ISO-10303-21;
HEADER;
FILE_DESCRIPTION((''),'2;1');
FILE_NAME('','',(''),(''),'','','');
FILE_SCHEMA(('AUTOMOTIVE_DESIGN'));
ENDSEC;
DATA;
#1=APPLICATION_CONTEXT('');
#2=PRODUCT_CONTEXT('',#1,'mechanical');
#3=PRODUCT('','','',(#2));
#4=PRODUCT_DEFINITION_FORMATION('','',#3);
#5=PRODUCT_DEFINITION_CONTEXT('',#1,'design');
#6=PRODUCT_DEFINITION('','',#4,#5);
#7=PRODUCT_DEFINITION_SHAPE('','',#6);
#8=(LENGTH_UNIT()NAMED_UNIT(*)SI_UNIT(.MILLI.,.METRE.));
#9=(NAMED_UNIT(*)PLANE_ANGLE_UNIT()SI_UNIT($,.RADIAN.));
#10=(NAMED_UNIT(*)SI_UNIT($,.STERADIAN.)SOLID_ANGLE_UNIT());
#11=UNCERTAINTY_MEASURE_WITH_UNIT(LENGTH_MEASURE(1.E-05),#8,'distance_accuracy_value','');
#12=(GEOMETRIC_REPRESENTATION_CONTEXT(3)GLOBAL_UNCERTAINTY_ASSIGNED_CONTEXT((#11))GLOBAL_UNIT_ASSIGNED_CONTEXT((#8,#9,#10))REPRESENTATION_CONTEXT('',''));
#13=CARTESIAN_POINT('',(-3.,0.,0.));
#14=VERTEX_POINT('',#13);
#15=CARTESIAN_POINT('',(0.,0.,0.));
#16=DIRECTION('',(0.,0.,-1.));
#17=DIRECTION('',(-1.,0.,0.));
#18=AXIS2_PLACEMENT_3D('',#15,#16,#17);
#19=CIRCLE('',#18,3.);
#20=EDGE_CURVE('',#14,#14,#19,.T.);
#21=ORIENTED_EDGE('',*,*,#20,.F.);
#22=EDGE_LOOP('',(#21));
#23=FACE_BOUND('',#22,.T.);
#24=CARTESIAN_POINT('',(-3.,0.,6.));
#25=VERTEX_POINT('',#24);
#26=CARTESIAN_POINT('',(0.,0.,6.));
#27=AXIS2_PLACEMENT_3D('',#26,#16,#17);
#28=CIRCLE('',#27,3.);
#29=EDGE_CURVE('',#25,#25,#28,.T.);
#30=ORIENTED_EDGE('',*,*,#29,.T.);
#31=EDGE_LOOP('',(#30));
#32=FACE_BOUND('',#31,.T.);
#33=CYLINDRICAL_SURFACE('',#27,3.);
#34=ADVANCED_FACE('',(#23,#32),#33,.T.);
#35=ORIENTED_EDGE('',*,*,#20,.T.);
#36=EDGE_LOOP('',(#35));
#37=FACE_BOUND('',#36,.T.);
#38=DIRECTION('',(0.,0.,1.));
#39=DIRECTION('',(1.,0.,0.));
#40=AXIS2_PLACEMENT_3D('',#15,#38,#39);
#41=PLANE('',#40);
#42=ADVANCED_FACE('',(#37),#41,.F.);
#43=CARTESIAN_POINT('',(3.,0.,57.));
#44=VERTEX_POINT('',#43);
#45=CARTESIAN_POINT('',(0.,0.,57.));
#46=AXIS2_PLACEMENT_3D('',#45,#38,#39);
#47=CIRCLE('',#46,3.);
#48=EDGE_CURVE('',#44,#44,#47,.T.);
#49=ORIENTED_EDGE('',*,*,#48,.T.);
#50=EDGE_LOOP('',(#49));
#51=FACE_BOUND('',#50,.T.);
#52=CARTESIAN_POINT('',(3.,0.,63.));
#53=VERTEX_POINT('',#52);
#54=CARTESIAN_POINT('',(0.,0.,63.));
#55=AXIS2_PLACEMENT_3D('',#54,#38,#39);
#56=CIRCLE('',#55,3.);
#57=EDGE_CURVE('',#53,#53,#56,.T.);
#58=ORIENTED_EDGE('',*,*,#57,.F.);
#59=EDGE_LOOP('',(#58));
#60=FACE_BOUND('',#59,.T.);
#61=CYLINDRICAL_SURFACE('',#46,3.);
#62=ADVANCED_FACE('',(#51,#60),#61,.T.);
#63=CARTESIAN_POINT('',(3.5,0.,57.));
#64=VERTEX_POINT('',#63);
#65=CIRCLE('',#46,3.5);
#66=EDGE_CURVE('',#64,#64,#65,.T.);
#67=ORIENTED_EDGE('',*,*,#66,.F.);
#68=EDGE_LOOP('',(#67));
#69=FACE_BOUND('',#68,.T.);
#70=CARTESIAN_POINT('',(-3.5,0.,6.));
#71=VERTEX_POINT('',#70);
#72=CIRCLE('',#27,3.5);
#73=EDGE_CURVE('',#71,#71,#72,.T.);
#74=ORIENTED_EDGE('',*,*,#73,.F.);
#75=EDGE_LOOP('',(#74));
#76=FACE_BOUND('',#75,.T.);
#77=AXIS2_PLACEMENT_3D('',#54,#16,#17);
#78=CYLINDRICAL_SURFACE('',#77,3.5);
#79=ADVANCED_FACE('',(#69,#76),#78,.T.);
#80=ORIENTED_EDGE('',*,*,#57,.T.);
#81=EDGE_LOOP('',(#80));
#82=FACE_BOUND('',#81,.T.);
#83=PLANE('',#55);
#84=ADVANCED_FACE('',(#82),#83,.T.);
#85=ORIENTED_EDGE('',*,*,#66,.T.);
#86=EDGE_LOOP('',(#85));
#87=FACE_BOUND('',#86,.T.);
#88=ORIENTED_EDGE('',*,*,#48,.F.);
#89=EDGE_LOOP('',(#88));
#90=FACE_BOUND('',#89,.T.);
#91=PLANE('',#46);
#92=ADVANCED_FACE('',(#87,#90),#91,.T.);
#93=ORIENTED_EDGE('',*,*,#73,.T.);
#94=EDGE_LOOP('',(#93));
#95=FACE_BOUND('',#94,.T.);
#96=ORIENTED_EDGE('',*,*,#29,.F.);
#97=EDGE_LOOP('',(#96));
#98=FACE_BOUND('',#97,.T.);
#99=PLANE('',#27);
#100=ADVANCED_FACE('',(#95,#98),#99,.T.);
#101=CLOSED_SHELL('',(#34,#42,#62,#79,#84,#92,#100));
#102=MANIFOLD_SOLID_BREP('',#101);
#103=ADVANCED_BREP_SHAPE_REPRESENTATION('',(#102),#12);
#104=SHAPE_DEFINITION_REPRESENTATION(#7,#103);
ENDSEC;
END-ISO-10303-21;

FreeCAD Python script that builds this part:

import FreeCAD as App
import Part
import Sketcher

doc = App.newDocument("Part")
body = doc.addObject("PartDesign::Body", "Body")

sketch1 = body.newObject("Sketcher::SketchObject", "Sketch")
sketch1.AttachmentSupport = (doc.getObject("XY_Plane"), [""])
sketch1.MapMode = "FlatFace"
sketch1.addGeometry(Part.Circle(App.Vector(0, 0, 0), App.Vector(0, 0, 1), 3.5), False)
sketch1.addConstraint(Sketcher.Constraint("Coincident", 0, 3, -1, 1))
sketch1.addConstraint(Sketcher.Constraint("Diameter", 0, 7.0))
pad1 = body.newObject("PartDesign::Pad", "Pad")
pad1.Profile = sketch1
pad1.Length = 63

sketch2 = body.newObject("Sketcher::SketchObject", "Sketch001")
sketch2.AttachmentSupport = (doc.getObject("XY_Plane"), [""])
sketch2.MapMode = "FlatFace"
sketch2.AttachmentOffset = App.Placement(App.Vector(0, 0, 63), App.Rotation())
sketch2.addGeometry(Part.Circle(App.Vector(0, 0, 0), App.Vector(0, 0, 1), 5.2), False)
sketch2.addGeometry(Part.Circle(App.Vector(0, 0, 0), App.Vector(0, 0, 1), 3), False)
sketch2.addConstraint(Sketcher.Constraint("Coincident", 0, 3, -1, 1))
sketch2.addConstraint(Sketcher.Constraint("Coincident", 1, 3, -1, 1))
sketch2.addConstraint(Sketcher.Constraint("Diameter", 1, 6.0))
sketch2.addConstraint(Sketcher.Constraint("Diameter", 0, 10.499878))
pocket1 = body.newObject("PartDesign::Pocket", "Pocket")
pocket1.Profile = sketch2
pocket1.Length = 6

sketch3 = body.newObject("Sketcher::SketchObject", "Sketch002")
sketch3.AttachmentSupport = (doc.getObject("XY_Plane"), [""])
sketch3.MapMode = "FlatFace"
sketch3.addGeometry(Part.Circle(App.Vector(0, 0, 0), App.Vector(0, 0, 1), 6), False)
sketch3.addGeometry(Part.Circle(App.Vector(0, 0, 0), App.Vector(0, 0, 1), 3), False)
sketch3.addConstraint(Sketcher.Constraint("Coincident", 0, 3, -1, 1))
sketch3.addConstraint(Sketcher.Constraint("Coincident", 1, 3, -1, 1))
sketch3.addConstraint(Sketcher.Constraint("Diameter", 1, 6.0))
sketch3.addConstraint(Sketcher.Constraint("Diameter", 0, 11.921302))
pocket2 = body.newObject("PartDesign::Pocket", "Pocket001")
pocket2.Profile = sketch3
pocket2.Length = 6
pocket2.Reversed = True

doc.recompute()
